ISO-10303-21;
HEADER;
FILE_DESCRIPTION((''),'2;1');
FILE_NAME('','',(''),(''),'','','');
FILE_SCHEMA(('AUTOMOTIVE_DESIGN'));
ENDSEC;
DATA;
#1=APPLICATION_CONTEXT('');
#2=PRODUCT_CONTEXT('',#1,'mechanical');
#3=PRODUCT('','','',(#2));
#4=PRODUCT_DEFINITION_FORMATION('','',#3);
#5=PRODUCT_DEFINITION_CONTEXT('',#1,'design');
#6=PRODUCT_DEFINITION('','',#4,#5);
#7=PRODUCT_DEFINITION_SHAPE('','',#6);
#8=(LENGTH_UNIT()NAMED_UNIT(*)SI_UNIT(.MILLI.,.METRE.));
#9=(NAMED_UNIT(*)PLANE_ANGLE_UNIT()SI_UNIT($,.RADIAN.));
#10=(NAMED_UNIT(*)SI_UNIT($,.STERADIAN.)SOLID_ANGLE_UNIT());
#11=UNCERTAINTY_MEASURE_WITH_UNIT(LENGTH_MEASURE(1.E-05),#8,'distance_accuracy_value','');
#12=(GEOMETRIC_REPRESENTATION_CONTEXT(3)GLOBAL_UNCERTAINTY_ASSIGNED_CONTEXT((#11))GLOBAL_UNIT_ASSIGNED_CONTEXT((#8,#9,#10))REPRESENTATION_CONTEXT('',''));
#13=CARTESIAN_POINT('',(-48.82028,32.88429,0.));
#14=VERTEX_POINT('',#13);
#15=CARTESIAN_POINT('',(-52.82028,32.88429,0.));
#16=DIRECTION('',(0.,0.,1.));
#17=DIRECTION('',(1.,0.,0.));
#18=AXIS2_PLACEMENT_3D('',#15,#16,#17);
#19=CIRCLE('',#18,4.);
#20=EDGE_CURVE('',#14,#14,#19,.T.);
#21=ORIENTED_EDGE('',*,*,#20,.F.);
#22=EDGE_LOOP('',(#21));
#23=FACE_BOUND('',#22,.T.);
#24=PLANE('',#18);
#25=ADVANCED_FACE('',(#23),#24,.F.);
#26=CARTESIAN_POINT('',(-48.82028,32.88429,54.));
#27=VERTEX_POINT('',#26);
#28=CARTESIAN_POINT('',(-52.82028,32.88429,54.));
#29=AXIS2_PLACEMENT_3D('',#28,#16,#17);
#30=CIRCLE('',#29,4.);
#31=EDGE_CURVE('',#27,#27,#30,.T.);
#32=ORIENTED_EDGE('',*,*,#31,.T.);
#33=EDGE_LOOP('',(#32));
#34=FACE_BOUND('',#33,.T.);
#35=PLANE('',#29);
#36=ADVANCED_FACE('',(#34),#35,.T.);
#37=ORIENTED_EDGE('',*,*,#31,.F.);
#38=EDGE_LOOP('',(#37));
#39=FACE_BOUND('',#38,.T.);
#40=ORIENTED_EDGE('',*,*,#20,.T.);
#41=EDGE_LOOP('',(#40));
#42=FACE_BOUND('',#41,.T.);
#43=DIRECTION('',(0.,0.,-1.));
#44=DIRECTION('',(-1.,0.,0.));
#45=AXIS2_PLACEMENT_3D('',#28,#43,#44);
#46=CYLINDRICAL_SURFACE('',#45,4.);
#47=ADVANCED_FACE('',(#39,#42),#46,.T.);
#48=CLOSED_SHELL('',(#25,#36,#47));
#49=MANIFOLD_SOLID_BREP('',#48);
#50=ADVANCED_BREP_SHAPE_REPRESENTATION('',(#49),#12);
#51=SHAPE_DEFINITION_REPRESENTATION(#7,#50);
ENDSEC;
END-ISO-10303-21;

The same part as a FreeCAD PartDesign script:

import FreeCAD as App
import Part
import Sketcher
from FreeCAD import Vector

doc = App.newDocument("Part")
body = doc.addObject("PartDesign::Body", "Body")

sketch1 = doc.addObject("Sketcher::SketchObject", "Sketch")
body.addObject(sketch1)
sketch1.AttachmentSupport = (doc.XY_Plane, [""])
sketch1.MapMode = "FlatFace"
sketch1.addGeometry(Part.Circle(Vector(-52.8, 32.9, 0), Vector(0, 0, 1), 4), False)
sketch1.addConstraint(Sketcher.Constraint("Diameter", 0, 8.0))
sketch1.addConstraint(Sketcher.Constraint("DistanceX", 0, 3, -1, 1, 52.82028))
sketch1.addConstraint(Sketcher.Constraint("DistanceY", -1, 1, 0, 3, 32.88429))
pad1 = doc.addObject("PartDesign::Pad", "Pad")
body.addObject(pad1)
pad1.Profile = sketch1
pad1.Length = 54

doc.recompute()
